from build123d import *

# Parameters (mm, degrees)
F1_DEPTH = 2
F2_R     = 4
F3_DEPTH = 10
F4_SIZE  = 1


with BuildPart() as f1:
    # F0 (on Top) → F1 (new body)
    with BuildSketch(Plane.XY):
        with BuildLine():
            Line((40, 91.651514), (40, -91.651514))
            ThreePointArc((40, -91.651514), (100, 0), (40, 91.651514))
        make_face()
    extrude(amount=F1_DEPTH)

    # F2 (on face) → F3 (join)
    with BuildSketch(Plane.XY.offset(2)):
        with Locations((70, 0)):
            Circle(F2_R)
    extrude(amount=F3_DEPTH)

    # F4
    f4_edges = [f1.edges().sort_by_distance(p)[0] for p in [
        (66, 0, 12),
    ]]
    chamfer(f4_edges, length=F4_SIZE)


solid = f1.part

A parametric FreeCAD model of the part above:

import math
import FreeCAD as App
import Part
import Sketcher
from FreeCAD import Vector


def edges_at(feature, points):
    """Names of the edges that pass closest to the given points."""
    edges = feature.Shape.Edges
    near = lambda p: min(range(len(edges)), key=lambda i: edges[i].distToShape(Part.Vertex(*p))[0])
    return sorted({f"Edge{near(p) + 1}" for p in points})

doc = App.newDocument("Part")
body = doc.addObject("PartDesign::Body", "Body")

sketch1 = doc.addObject("Sketcher::SketchObject", "Sketch")
body.addObject(sketch1)
sketch1.AttachmentSupport = (doc.XY_Plane, [""])
sketch1.MapMode = "FlatFace"
sketch1.addGeometry([
    Part.LineSegment(Vector(40, 92, 0), Vector(40, -92, 0)),
    Part.ArcOfCircle(Part.Circle(Vector(0, 0, 0), Vector(0, 0, 1), 100), math.radians(-66), math.radians(66)),
], False)
sketch1.addConstraint([
    Sketcher.Constraint("Coincident", 0, 1, 1, 2),
    Sketcher.Constraint("Coincident", 1, 1, 0, 2),
    Sketcher.Constraint("Vertical", 0),
    Sketcher.Constraint("Coincident", 1, 3, -1, 1),
    Sketcher.Constraint("Radius", 1, 100.0),
    Sketcher.Constraint("DistanceX", -1, 1, 0, 1, 40.0),
])
pad1 = doc.addObject("PartDesign::Pad", "Pad")
body.addObject(pad1)
pad1.Profile = sketch1
pad1.Length = 2

sketch2 = doc.addObject("Sketcher::SketchObject", "Sketch001")
body.addObject(sketch2)
sketch2.AttachmentSupport = (doc.XY_Plane, [""])
sketch2.MapMode = "FlatFace"
sketch2.AttachmentOffset = App.Placement(Vector(0, 0, 2), App.Rotation())
sketch2.addGeometry(Part.Circle(Vector(70, 0, 0), Vector(0, 0, 1), 4), False)
sketch2.addConstraint([
    Sketcher.Constraint("PointOnObject", 0, 3, -1),
    Sketcher.Constraint("Diameter", 0, 8.0),
    Sketcher.Constraint("DistanceX", -1, 1, 0, 3, 70.0),
])
pad2 = doc.addObject("PartDesign::Pad", "Pad001")
body.addObject(pad2)
pad2.Profile = sketch2
pad2.Length = 10
doc.recompute()

chamfer = doc.addObject("PartDesign::Chamfer", "Chamfer")
body.addObject(chamfer)
chamfer.Base = (pad2, edges_at(pad2, [(66, 0, 12)]))
chamfer.Size = 1

doc.recompute()
